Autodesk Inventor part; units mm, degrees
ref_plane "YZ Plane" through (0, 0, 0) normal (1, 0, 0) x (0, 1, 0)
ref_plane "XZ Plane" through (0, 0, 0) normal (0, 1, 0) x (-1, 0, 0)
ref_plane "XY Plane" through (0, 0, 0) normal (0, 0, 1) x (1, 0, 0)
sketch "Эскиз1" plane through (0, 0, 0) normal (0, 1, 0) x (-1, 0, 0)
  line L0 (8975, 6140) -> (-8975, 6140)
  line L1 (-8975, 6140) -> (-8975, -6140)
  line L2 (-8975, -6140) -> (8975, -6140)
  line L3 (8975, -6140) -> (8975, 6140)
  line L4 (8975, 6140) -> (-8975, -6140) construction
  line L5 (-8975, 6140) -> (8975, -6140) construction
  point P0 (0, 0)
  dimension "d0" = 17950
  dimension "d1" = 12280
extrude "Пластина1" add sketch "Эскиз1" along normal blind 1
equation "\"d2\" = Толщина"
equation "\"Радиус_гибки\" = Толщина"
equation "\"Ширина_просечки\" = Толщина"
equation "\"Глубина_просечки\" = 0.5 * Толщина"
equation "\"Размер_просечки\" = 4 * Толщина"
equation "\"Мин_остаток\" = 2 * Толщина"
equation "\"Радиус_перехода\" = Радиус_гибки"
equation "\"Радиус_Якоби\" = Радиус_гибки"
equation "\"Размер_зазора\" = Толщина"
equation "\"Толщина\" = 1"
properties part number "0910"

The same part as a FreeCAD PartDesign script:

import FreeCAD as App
import Part
import Sketcher
from FreeCAD import Vector


def add_polygon(sketch, points):
    """Adds a closed chain of lines whose ends are joined by coincident constraints."""
    first, n = sketch.GeometryCount, len(points)
    for a, b in zip(points, points[1:] + points[:1]):
        sketch.addGeometry(Part.LineSegment(App.Vector(*a, 0), App.Vector(*b, 0)), False)
    for i in range(n):
        sketch.addConstraint(Sketcher.Constraint("Coincident", first + i, 2, first + (i + 1) % n, 1))

doc = App.newDocument("Part")
body = doc.addObject("PartDesign::Body", "Body")

# Sketch on XZ plane
sketch1 = body.newObject("Sketcher::SketchObject", "Sketch")
sketch1.AttachmentSupport = (doc.getObject("XZ_Plane"), [""])
sketch1.MapMode = "FlatFace"
add_polygon(sketch1, [(-8975, -6140), (-8975, 6140), (8975, 6140), (8975, -6140)])  # lines 0-3
sketch1.addConstraint(Sketcher.Constraint("Vertical", 0))
sketch1.addConstraint(Sketcher.Constraint("Horizontal", 1))
sketch1.addConstraint(Sketcher.Constraint("Vertical", 2))
sketch1.addConstraint(Sketcher.Constraint("Horizontal", 3))
sketch1.addConstraint(Sketcher.Constraint("Symmetric", 0, 2, 2, 2, -1, 1))
sketch1.addConstraint(Sketcher.Constraint("DistanceX", 1, 1, 1, 2, 17950.0))
sketch1.addConstraint(Sketcher.Constraint("DistanceY", 0, 1, 0, 2, 12280.0))
pad1 = body.newObject("PartDesign::Pad", "Pad")
pad1.Profile = sketch1
pad1.Length = 1
pad1.Reversed = True

doc.recompute()
